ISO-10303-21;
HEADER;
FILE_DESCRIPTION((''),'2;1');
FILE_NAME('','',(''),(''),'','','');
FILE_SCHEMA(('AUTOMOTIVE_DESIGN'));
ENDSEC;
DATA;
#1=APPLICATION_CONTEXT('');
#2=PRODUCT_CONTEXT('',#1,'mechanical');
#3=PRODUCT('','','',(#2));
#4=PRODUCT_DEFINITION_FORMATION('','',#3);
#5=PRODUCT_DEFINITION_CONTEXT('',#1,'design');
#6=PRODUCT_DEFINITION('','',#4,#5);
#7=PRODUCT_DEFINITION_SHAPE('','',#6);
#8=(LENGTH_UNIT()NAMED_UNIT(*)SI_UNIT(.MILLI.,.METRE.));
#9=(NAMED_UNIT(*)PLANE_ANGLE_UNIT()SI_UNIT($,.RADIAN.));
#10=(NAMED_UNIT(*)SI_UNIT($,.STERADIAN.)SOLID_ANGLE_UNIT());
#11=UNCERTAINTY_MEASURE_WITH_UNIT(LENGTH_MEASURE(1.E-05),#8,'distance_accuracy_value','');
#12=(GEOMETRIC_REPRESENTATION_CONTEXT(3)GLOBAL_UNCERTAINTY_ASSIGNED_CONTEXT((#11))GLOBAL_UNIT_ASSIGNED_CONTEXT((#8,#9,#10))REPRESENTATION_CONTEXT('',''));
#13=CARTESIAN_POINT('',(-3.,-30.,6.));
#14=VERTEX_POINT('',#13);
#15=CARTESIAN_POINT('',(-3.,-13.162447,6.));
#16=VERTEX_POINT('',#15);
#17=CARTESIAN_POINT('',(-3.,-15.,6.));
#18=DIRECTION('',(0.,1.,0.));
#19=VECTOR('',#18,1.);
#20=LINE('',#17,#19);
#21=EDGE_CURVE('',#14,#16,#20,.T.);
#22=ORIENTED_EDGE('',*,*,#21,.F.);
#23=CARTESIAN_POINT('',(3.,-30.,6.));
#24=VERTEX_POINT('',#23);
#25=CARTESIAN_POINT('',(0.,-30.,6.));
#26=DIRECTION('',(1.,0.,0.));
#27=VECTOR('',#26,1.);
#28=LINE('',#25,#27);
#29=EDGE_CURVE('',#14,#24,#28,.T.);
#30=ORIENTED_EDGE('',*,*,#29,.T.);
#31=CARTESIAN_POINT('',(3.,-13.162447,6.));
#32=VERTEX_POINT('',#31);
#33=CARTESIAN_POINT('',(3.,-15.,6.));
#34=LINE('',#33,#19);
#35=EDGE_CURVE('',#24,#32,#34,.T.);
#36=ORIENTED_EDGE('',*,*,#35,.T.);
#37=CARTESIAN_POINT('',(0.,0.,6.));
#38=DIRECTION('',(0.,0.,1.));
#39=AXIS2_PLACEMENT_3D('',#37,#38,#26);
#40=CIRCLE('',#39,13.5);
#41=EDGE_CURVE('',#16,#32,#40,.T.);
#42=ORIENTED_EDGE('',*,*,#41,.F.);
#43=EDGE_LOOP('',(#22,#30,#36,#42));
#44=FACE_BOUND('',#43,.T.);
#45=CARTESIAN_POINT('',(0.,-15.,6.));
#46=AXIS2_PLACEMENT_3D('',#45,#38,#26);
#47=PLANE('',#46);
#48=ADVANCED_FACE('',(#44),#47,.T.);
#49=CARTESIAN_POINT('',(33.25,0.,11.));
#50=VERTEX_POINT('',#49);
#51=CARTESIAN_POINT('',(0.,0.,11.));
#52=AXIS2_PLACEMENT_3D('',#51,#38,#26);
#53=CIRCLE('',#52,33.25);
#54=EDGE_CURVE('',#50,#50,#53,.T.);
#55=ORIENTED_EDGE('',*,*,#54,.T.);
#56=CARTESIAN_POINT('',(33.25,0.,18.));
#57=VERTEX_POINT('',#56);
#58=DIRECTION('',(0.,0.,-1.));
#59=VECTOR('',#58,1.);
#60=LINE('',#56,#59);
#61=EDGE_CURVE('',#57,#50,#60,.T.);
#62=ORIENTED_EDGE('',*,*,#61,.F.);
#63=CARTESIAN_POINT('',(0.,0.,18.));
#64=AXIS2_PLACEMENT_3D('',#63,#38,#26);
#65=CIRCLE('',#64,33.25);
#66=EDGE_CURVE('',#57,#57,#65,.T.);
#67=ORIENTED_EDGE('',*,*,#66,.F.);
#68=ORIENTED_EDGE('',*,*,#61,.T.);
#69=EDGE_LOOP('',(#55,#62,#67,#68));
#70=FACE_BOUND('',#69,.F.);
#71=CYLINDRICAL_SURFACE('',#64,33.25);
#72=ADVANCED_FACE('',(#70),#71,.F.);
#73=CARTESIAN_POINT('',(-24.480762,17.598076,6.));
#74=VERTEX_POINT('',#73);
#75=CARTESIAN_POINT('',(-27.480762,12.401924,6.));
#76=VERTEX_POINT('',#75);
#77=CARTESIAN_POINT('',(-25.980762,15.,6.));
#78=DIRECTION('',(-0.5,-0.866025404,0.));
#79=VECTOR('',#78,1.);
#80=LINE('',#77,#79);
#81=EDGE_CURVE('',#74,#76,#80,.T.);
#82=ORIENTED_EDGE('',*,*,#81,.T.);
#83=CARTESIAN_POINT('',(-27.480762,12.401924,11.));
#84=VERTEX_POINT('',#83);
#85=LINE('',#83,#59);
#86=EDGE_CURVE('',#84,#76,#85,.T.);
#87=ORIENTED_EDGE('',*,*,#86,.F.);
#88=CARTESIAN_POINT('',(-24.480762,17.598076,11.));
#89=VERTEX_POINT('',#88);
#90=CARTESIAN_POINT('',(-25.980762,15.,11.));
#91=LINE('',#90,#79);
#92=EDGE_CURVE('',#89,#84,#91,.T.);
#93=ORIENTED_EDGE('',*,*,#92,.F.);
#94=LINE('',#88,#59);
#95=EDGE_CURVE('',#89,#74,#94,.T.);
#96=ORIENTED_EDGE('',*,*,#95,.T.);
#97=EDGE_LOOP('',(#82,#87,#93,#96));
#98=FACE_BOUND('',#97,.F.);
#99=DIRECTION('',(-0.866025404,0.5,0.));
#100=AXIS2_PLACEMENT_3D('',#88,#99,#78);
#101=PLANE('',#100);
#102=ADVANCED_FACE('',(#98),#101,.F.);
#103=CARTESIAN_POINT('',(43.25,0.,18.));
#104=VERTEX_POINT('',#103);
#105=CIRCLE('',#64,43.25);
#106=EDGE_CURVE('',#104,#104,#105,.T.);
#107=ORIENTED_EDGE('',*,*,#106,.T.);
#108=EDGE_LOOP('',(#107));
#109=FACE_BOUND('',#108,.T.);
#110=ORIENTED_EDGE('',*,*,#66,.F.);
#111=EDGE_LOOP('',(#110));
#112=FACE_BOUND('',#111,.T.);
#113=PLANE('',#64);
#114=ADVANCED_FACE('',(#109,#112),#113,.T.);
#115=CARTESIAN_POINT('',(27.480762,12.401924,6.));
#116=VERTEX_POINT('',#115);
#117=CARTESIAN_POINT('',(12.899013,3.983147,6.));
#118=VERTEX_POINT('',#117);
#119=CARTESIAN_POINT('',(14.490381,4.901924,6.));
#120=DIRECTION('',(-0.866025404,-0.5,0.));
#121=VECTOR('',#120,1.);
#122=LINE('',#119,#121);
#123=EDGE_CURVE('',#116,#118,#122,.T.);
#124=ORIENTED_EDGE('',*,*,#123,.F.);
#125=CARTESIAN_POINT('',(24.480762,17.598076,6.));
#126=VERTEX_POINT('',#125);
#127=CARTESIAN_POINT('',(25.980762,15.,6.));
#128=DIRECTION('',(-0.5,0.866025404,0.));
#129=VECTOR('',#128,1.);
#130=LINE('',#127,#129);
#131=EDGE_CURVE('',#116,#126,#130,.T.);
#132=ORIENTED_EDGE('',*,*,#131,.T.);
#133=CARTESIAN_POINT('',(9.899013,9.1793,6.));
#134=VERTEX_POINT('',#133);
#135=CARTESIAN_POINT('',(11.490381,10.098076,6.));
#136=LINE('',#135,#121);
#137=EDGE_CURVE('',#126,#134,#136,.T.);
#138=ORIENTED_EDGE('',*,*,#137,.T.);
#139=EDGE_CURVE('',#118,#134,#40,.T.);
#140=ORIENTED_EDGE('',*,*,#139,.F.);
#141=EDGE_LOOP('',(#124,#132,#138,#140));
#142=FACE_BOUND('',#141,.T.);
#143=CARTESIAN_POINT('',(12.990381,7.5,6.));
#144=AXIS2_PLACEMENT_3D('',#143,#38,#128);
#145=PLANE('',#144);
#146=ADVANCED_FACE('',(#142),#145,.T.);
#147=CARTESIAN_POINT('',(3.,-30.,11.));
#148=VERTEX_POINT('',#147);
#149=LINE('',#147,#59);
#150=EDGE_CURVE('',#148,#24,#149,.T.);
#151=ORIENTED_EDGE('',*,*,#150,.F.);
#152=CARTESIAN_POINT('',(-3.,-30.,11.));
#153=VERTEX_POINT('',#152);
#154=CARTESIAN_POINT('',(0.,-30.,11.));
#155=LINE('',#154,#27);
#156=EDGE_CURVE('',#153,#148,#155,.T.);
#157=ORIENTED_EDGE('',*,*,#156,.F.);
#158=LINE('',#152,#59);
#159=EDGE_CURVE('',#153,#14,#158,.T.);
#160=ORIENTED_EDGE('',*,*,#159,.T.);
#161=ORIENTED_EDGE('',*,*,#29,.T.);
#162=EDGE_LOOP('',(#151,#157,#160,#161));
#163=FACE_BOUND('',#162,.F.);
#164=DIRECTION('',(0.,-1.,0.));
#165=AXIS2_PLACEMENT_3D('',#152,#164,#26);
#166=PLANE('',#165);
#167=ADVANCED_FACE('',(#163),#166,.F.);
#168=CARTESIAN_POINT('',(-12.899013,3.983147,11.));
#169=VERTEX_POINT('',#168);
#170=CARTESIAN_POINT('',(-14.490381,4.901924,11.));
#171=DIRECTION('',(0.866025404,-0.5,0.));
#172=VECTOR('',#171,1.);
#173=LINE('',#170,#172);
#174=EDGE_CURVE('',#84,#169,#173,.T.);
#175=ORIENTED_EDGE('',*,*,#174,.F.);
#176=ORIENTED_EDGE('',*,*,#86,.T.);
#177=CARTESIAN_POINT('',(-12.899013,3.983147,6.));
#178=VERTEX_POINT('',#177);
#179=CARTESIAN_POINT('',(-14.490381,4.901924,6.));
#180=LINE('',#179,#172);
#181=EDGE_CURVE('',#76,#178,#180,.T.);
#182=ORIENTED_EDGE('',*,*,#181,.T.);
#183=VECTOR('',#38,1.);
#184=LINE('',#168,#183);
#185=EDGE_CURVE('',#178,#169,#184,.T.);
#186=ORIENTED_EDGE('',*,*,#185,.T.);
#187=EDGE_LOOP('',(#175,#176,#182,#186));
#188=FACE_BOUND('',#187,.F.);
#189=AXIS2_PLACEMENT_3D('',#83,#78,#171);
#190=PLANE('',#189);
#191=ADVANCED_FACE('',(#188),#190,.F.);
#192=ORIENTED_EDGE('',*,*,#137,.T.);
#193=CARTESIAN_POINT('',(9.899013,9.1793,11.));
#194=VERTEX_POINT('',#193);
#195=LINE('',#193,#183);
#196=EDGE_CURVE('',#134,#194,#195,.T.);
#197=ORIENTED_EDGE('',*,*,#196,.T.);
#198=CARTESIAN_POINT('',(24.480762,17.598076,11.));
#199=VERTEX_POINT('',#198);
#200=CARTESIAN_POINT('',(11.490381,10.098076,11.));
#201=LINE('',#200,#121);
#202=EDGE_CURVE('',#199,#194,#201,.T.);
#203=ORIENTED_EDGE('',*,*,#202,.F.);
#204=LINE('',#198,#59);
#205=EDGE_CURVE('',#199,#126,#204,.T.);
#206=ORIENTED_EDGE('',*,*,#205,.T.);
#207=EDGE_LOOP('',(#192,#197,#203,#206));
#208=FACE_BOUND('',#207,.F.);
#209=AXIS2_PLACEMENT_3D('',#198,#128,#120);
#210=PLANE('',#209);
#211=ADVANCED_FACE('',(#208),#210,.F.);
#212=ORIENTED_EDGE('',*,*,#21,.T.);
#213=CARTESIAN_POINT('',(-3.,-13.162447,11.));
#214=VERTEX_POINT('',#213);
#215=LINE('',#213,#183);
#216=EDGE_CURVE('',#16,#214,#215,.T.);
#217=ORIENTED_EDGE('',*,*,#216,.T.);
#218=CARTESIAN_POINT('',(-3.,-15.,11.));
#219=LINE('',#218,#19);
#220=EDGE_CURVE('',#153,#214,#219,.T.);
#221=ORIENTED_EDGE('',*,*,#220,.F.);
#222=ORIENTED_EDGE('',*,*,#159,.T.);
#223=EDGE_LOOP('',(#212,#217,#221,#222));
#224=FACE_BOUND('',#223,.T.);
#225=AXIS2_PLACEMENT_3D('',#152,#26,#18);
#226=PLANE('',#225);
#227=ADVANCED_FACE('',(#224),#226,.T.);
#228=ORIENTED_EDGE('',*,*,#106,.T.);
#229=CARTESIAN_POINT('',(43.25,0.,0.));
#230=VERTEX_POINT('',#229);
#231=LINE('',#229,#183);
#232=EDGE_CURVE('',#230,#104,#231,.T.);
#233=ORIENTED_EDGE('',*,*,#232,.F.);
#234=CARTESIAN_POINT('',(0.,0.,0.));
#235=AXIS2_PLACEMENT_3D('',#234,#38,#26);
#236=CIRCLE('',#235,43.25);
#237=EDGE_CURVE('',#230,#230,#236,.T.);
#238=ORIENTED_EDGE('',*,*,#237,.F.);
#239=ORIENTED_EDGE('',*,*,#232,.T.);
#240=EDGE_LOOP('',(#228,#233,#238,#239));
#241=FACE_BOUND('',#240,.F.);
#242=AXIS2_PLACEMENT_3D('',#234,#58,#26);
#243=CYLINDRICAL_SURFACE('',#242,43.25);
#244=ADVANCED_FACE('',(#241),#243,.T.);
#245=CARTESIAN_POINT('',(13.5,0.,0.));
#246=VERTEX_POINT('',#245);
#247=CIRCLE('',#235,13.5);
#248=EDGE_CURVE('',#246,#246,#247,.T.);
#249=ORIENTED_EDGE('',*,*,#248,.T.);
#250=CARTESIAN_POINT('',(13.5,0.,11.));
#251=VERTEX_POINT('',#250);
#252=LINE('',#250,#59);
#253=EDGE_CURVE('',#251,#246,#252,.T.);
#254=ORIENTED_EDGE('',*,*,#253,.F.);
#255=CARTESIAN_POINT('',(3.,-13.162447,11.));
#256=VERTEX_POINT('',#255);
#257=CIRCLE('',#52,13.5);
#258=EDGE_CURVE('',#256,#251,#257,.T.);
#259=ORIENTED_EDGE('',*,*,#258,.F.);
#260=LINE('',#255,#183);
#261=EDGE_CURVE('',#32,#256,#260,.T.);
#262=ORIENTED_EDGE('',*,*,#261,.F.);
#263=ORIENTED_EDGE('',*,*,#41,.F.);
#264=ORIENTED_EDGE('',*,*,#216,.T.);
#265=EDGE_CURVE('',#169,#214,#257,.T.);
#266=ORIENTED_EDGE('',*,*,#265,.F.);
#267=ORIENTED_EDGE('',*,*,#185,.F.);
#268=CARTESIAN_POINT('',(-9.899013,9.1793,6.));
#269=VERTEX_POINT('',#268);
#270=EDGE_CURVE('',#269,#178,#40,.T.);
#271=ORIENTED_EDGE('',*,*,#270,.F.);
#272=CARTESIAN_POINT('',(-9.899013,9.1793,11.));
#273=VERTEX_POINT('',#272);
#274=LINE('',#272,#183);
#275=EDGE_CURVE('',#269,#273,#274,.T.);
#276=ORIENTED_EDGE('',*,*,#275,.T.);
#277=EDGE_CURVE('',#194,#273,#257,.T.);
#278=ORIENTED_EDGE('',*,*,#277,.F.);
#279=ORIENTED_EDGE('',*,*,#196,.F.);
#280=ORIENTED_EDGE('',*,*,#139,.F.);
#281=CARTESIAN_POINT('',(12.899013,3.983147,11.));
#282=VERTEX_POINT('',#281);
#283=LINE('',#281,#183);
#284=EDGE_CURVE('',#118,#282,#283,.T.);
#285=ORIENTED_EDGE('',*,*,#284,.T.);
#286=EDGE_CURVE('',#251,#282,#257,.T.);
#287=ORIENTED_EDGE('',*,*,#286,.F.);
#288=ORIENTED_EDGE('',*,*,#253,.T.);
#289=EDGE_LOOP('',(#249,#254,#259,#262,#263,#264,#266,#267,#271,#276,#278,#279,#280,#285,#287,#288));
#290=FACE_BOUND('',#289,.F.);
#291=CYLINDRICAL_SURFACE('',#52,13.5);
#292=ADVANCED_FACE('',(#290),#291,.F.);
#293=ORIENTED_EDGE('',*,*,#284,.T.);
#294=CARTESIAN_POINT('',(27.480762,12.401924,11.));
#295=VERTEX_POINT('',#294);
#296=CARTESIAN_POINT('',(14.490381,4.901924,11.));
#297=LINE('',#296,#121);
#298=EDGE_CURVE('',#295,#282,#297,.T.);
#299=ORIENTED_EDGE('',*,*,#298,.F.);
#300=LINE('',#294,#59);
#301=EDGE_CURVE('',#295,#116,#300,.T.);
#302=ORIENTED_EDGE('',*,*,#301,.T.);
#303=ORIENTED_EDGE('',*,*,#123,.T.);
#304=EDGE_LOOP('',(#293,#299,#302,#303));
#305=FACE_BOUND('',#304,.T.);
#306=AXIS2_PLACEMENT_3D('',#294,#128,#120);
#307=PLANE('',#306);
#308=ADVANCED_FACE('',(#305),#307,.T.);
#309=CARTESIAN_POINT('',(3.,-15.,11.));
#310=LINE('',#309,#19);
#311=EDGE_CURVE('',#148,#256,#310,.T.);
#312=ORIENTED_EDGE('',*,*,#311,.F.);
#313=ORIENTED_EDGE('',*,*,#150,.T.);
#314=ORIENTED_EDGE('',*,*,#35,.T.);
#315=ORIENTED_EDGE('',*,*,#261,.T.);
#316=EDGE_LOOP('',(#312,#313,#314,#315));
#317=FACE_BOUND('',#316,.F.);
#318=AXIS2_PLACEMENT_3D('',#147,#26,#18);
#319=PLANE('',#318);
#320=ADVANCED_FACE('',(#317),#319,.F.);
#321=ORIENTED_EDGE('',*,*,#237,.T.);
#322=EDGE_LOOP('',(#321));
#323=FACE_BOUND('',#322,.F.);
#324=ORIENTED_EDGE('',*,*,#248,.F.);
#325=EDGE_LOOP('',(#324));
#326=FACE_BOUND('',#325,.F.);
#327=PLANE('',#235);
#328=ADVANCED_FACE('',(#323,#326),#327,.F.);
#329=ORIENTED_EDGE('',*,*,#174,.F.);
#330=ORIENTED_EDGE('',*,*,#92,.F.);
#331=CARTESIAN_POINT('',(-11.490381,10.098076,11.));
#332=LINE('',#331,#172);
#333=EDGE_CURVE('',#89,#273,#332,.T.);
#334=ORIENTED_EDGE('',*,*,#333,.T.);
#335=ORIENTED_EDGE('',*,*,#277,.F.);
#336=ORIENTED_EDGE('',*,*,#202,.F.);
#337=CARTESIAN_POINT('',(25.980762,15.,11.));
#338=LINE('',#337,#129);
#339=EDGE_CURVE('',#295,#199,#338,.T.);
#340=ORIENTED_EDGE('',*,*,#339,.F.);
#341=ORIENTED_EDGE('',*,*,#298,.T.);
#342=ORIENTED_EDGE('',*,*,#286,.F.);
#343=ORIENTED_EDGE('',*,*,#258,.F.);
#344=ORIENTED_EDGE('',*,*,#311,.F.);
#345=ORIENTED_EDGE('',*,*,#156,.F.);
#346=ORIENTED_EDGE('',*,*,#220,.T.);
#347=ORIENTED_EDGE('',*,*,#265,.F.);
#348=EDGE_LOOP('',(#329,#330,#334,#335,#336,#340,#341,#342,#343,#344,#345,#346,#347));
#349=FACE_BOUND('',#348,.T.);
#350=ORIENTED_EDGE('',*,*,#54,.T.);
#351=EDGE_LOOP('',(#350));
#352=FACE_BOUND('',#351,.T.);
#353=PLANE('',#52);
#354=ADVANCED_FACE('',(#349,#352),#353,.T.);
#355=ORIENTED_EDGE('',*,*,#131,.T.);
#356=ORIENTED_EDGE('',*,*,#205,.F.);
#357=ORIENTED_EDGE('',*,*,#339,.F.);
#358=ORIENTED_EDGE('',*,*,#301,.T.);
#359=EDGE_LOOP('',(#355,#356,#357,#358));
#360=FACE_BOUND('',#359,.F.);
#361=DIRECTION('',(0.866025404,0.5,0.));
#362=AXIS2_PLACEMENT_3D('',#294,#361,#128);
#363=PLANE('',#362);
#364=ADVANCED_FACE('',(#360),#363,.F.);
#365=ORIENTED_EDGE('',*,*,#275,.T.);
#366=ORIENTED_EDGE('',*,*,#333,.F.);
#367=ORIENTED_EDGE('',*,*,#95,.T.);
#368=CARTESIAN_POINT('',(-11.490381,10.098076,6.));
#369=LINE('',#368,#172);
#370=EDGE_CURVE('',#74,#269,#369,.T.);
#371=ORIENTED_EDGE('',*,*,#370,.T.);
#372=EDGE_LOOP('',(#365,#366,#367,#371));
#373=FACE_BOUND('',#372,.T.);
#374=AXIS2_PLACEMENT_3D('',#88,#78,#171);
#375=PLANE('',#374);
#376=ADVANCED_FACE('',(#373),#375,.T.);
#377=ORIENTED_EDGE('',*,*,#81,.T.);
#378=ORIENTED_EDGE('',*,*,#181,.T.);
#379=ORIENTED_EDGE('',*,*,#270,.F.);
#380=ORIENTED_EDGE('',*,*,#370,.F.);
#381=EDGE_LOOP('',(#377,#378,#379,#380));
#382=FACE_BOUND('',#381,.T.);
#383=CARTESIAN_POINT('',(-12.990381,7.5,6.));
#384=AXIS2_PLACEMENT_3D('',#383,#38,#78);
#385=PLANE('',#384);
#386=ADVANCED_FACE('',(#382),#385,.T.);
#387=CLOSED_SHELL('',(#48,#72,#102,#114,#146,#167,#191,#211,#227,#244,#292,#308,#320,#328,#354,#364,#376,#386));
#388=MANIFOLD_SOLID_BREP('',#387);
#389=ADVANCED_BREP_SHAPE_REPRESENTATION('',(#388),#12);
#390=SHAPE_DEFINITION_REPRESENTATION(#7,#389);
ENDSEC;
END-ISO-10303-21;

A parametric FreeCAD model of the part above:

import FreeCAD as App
import Part
import Sketcher

V = App.Vector


def add_polygon(sketch, points):
    """Adds a closed chain of lines whose ends are joined by coincident constraints."""
    first, n = sketch.GeometryCount, len(points)
    for a, b in zip(points, points[1:] + points[:1]):
        sketch.addGeometry(Part.LineSegment(App.Vector(*a, 0), App.Vector(*b, 0)), False)
    for i in range(n):
        sketch.addConstraint(Sketcher.Constraint("Coincident", first + i, 2, first + (i + 1) % n, 1))

doc = App.newDocument("Part")
body = doc.addObject("PartDesign::Body", "Body")

# Sketch on XY plane
sketch1 = doc.addObject("Sketcher::SketchObject", "Sketch")
body.addObject(sketch1)
sketch1.AttachmentSupport = (doc.XY_Plane, [""])
sketch1.MapMode = "FlatFace"
sketch1.addGeometry(Part.Circle(V(0, 0, 0), V(0, 0, 1), 43), False)
sketch1.addConstraint([
    Sketcher.Constraint("Coincident", 0, 3, -1, 1),
    Sketcher.Constraint("Diameter", 0, 86.5),
])
pad1 = doc.addObject("PartDesign::Pad", "Pad")
body.addObject(pad1)
pad1.Profile = sketch1
pad1.Length = 18

# Sketch on XY plane
sketch2 = doc.addObject("Sketcher::SketchObject", "Sketch001")
body.addObject(sketch2)
sketch2.AttachmentSupport = (doc.XY_Plane, [""])
sketch2.MapMode = "FlatFace"
sketch2.AttachmentOffset = App.Placement(V(0, 0, 18), App.Rotation())
sketch2.addGeometry(Part.Circle(V(0, 0, 0), V(0, 0, 1), 33), False)
sketch2.addConstraint([
    Sketcher.Constraint("Coincident", 0, 3, -1, 1),
    Sketcher.Constraint("Diameter", 0, 66.5),
])
pocket1 = doc.addObject("PartDesign::Pocket", "Pocket")
body.addObject(pocket1)
pocket1.Profile = sketch2
pocket1.Length = 7

# Sketch on XY plane
sketch3 = doc.addObject("Sketcher::SketchObject", "Sketch002")
body.addObject(sketch3)
sketch3.AttachmentSupport = (doc.XY_Plane, [""])
sketch3.MapMode = "FlatFace"
sketch3.AttachmentOffset = App.Placement(V(0, 0, 11), App.Rotation())
sketch3.addGeometry(Part.Circle(V(0, 0, 0), V(0, 0, 1), 14), False)
sketch3.addConstraint([
    Sketcher.Constraint("Coincident", 0, 3, -1, 1),
    Sketcher.Constraint("Diameter", 0, 27.0),
])
pocket2 = doc.addObject("PartDesign::Pocket", "Pocket001")
body.addObject(pocket2)
pocket2.Profile = sketch3
pocket2.Type = "ThroughAll"

# Sketch on XY plane
sketch4 = doc.addObject("Sketcher::SketchObject", "Sketch003")
body.addObject(sketch4)
sketch4.AttachmentSupport = (doc.XY_Plane, [""])
sketch4.MapMode = "FlatFace"
sketch4.AttachmentOffset = App.Placement(V(0, 0, 11), App.Rotation())
add_polygon(sketch4, [(-3, 0), (-3, -30), (3, -30), (3, 0)])  # lines 0-3
sketch4.addConstraint([
    Sketcher.Constraint("Vertical", 0),
    Sketcher.Constraint("Horizontal", 1),
    Sketcher.Constraint("Vertical", 2),
    Sketcher.Constraint("Horizontal", 3),
    Sketcher.Constraint("Symmetric", 2, 2, 3, 2, -1, 1),
    Sketcher.Constraint("DistanceX", 1, 1, 1, 2, 6.0),
    Sketcher.Constraint("DistanceY", 0, 2, 0, 1, 30.0),
])
pocket3 = doc.addObject("PartDesign::Pocket", "Pocket002")
body.addObject(pocket3)
pocket3.Profile = sketch4
pocket3.Length = 5
doc.recompute()

polarpattern = doc.addObject("PartDesign::PolarPattern", "PolarPattern")
body.addObject(polarpattern)
polarpattern.Originals = [pocket3]
polarpattern.Axis = (doc.Z_Axis, [""])
polarpattern.Angle = 360
polarpattern.Occurrences = 3
body.Tip = polarpattern

doc.recompute()
